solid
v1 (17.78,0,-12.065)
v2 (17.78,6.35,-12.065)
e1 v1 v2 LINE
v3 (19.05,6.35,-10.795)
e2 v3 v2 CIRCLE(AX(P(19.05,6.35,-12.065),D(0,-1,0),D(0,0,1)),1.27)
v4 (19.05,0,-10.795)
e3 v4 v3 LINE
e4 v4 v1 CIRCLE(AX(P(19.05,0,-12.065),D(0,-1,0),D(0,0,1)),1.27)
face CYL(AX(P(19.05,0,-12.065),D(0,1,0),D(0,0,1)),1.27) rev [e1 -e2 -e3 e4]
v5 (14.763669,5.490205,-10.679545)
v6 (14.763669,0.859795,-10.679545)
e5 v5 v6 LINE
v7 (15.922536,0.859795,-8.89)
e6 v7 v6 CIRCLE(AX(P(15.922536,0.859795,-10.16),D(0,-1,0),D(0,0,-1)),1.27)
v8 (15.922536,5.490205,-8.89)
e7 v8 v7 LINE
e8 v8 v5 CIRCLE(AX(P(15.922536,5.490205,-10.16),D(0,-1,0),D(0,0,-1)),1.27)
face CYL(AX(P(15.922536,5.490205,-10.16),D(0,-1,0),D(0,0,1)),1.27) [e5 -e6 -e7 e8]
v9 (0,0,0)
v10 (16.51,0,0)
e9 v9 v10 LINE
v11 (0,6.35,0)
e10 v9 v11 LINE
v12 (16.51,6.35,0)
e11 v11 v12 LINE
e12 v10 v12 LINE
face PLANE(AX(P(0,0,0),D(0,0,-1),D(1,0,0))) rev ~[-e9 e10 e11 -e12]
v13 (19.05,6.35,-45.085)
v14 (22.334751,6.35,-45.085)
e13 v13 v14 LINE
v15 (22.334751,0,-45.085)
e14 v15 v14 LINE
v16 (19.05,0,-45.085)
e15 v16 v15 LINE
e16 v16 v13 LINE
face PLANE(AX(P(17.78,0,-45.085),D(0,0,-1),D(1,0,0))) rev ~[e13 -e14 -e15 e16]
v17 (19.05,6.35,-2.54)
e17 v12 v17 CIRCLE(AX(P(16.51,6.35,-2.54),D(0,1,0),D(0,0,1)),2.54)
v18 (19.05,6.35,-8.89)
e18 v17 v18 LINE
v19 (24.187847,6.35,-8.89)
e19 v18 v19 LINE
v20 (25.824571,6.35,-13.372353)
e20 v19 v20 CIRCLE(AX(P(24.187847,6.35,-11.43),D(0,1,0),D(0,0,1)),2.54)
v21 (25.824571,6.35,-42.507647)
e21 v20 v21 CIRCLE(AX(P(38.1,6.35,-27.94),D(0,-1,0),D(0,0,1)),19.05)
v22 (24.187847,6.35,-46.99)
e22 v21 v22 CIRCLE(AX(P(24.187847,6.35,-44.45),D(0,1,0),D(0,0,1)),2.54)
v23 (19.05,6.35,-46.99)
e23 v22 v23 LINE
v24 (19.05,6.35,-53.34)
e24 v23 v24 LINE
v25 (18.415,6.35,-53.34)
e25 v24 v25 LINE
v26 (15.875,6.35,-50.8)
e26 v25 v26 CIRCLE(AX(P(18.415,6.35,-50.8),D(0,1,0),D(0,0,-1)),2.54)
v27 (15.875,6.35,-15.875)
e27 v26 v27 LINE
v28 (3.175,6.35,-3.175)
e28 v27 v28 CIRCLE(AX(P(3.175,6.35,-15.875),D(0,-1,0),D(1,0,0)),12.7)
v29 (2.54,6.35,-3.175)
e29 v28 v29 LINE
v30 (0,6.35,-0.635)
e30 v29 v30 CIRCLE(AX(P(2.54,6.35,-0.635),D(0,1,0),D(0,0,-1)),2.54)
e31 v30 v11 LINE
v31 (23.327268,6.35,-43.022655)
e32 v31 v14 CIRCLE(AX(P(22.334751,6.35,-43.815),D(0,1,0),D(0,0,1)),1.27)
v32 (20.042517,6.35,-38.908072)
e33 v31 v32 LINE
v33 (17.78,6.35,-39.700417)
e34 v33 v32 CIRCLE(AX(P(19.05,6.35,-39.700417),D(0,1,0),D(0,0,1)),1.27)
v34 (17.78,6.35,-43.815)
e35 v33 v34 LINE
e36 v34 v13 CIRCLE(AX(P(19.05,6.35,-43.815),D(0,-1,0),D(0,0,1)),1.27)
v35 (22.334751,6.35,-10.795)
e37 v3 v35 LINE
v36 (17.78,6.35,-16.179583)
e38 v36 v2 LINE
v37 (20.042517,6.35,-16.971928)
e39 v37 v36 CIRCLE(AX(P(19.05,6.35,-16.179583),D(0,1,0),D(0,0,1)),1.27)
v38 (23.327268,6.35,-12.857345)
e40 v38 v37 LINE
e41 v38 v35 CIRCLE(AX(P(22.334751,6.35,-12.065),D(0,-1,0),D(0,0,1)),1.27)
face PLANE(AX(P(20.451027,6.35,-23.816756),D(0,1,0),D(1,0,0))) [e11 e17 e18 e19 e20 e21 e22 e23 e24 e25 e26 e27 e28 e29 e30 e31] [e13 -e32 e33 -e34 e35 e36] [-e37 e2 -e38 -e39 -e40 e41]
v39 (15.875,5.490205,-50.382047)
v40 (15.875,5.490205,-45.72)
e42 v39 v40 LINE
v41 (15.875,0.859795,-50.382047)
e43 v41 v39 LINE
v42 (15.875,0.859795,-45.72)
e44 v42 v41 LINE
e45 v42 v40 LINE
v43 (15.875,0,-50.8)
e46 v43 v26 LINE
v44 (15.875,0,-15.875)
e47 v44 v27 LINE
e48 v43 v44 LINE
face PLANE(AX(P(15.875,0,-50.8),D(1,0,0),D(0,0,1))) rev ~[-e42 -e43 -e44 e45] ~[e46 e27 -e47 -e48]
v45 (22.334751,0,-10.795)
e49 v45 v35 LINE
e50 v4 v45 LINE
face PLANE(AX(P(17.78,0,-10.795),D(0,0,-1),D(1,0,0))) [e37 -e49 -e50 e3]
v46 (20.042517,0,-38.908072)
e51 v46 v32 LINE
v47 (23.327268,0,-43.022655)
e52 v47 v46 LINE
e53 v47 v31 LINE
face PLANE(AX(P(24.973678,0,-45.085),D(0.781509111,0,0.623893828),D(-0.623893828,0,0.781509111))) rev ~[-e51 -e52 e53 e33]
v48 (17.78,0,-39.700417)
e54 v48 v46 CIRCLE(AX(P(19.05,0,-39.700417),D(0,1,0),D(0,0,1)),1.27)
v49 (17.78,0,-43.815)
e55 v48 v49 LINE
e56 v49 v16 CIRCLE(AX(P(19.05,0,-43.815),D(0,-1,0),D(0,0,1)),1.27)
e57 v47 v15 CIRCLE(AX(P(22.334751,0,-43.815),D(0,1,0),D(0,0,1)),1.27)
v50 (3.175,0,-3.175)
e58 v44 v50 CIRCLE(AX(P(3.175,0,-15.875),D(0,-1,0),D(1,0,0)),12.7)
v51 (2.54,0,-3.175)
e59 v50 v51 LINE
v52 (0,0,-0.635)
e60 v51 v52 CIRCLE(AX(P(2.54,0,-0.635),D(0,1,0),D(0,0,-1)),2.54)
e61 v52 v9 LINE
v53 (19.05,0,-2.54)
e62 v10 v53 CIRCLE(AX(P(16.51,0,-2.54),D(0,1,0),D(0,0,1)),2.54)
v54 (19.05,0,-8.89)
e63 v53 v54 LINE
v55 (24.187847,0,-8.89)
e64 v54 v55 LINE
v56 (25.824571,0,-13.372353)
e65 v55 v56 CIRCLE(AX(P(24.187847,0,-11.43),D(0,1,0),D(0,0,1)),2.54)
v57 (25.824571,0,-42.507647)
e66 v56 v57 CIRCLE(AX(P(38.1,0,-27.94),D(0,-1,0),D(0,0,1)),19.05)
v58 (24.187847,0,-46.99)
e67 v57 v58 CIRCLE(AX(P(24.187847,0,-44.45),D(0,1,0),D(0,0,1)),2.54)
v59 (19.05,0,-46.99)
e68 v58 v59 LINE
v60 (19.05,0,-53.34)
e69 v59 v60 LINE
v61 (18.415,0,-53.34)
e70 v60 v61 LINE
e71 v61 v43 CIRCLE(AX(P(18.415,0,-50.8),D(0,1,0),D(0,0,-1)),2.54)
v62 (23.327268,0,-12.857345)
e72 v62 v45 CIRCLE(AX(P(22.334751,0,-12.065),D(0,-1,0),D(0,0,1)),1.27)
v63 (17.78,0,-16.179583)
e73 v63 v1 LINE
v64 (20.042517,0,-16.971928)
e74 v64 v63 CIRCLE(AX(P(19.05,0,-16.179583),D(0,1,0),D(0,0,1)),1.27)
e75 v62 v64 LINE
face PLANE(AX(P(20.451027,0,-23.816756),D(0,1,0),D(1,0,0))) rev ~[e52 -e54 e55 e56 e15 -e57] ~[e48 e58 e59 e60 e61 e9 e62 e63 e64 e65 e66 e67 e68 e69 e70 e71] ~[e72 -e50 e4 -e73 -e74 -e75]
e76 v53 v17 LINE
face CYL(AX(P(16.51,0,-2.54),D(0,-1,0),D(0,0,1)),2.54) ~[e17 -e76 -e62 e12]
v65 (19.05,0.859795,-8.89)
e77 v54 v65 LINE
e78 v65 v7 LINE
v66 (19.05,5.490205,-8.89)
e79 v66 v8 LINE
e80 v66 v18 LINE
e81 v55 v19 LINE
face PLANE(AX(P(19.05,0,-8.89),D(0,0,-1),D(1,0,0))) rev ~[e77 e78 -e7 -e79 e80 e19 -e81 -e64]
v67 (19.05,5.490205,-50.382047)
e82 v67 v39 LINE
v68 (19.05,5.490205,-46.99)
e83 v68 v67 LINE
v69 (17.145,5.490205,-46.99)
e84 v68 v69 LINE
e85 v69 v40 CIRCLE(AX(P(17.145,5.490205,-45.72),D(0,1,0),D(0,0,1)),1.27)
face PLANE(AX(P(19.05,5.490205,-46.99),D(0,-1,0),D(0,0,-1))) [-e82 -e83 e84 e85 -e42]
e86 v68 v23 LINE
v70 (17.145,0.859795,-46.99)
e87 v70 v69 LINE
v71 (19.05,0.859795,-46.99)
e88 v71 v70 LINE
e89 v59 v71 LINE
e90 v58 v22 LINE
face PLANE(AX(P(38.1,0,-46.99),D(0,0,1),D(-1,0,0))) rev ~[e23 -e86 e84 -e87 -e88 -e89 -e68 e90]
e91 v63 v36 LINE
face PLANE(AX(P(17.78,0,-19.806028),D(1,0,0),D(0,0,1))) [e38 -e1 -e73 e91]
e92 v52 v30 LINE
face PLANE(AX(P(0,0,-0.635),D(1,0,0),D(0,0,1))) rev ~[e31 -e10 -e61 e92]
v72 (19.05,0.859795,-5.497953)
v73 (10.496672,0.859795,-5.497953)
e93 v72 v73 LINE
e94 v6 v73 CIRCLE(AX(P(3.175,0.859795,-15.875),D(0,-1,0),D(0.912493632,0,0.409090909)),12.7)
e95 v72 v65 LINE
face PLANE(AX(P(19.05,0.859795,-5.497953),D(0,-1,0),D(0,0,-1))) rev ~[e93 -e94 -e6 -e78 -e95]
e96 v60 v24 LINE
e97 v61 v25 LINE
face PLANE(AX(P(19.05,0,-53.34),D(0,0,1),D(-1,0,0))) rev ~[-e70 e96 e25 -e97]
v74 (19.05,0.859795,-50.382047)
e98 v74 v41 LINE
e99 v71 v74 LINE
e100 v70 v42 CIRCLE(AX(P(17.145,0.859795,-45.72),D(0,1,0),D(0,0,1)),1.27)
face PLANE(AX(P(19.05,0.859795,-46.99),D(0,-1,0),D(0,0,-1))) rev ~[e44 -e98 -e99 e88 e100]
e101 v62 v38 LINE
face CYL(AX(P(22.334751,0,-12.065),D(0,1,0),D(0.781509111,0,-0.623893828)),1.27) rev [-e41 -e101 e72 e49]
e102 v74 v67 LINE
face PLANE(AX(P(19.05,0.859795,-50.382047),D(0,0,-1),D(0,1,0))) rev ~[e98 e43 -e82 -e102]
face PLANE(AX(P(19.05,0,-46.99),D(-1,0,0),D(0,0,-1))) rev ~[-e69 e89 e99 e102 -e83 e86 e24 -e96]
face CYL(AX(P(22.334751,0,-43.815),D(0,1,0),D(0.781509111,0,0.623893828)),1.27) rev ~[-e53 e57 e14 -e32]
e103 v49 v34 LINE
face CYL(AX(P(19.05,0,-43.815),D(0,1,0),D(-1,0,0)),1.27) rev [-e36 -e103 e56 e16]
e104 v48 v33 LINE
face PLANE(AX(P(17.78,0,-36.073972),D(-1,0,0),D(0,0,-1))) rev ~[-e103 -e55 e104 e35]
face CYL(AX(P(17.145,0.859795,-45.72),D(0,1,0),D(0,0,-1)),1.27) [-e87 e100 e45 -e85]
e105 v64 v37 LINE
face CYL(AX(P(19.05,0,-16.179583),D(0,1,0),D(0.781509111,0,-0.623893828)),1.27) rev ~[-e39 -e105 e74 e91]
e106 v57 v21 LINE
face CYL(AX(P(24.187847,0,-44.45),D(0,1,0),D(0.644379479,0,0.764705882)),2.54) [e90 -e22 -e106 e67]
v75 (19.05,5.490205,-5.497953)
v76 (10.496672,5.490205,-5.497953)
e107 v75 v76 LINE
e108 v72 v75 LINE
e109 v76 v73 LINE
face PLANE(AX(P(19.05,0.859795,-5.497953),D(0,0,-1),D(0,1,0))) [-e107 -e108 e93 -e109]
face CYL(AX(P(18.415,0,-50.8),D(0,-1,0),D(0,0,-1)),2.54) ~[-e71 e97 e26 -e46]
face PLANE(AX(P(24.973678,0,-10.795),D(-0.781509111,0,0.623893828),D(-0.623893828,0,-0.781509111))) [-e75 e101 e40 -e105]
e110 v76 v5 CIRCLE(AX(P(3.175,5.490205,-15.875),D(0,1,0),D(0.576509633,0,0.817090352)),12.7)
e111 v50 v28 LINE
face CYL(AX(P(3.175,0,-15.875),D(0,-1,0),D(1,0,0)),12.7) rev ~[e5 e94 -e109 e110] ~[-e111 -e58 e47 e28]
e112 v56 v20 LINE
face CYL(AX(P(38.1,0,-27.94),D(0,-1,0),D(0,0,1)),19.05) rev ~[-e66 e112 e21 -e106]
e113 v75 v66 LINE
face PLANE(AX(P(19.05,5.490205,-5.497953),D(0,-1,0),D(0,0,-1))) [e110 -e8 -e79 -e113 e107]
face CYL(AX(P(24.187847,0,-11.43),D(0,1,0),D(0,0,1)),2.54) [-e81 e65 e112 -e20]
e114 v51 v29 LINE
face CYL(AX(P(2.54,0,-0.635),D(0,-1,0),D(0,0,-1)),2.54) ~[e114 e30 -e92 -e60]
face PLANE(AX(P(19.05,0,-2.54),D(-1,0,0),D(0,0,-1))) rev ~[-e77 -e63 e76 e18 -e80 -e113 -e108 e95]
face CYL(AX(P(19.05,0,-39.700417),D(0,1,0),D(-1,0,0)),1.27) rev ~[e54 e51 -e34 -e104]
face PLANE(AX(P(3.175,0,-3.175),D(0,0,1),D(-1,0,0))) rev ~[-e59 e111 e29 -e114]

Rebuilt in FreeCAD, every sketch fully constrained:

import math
import FreeCAD as App
import Part
import Sketcher
from FreeCAD import Vector
Q = App.Units.Quantity


def edges_at(feature, points):
    """Names of the edges that pass closest to the given points."""
    edges = feature.Shape.Edges
    near = lambda p: min(range(len(edges)), key=lambda i: edges[i].distToShape(Part.Vertex(*p))[0])
    return sorted({f"Edge{near(p) + 1}" for p in points})


def add_polygon(sketch, points):
    """Adds a closed chain of lines whose ends are joined by coincident constraints."""
    first, n = sketch.GeometryCount, len(points)
    for a, b in zip(points, points[1:] + points[:1]):
        sketch.addGeometry(Part.LineSegment(App.Vector(*a, 0), App.Vector(*b, 0)), False)
    for i in range(n):
        sketch.addConstraint(Sketcher.Constraint("Coincident", first + i, 2, first + (i + 1) % n, 1))

doc = App.newDocument("Part")
body = doc.addObject("PartDesign::Body", "Body")

# Sketch on XZ plane
sketch1 = body.newObject("Sketcher::SketchObject", "Sketch")
sketch1.AttachmentSupport = (doc.getObject("XZ_Plane"), [""])
sketch1.MapMode = "FlatFace"
sketch1.addGeometry(Part.LineSegment(Vector(0, 0, 0), Vector(16.51, 0, 0)), False)  # 0
sketch1.addGeometry(Part.ArcOfCircle(Part.Circle(Vector(16.51, -2.54, 0), Vector(0, 0, 1), 2.54), math.radians(0), math.radians(90)), False)  # 1
sketch1.addGeometry(Part.LineSegment(Vector(19.05, -2.54, 0), Vector(19.05, -8.89, 0)), False)  # 2
sketch1.addGeometry(Part.LineSegment(Vector(19.05, -8.89, 0), Vector(38.1, -8.89, 0)), False)  # 3
sketch1.addGeometry(Part.ArcOfCircle(Part.Circle(Vector(38.1, -27.94, 0), Vector(0, 0, 1), 19.05), math.radians(90), math.radians(270)), False)  # 4
sketch1.addGeometry(Part.LineSegment(Vector(38.1, -46.99, 0), Vector(19.05, -46.99, 0)), False)  # 5
sketch1.addGeometry(Part.LineSegment(Vector(19.05, -46.99, 0), Vector(19.05, -53.34, 0)), False)  # 6
sketch1.addGeometry(Part.LineSegment(Vector(19.05, -53.34, 0), Vector(18.415, -53.34, 0)), False)  # 7
sketch1.addGeometry(Part.ArcOfCircle(Part.Circle(Vector(18.415, -50.8, 0), Vector(0, 0, 1), 2.54), math.radians(-180), math.radians(-90)), False)  # 8
sketch1.addGeometry(Part.LineSegment(Vector(15.875, -50.8, 0), Vector(15.875, -15.875, 0)), False)  # 9
sketch1.addGeometry(Part.ArcOfCircle(Part.Circle(Vector(3.175, -15.875, 0), Vector(0, 0, 1), 12.7), math.radians(0), math.radians(90)), False)  # 10
sketch1.addGeometry(Part.LineSegment(Vector(3.175, -3.175, 0), Vector(2.54, -3.175, 0)), False)  # 11
sketch1.addGeometry(Part.ArcOfCircle(Part.Circle(Vector(2.54, -0.635, 0), Vector(0, 0, 1), 2.54), math.radians(-180), math.radians(-90)), False)  # 12
sketch1.addGeometry(Part.LineSegment(Vector(0, -0.635, 0), Vector(0, 0, 0)), False)  # 13
add_polygon(sketch1, [(17.78, -19.806028), (24.973678, -10.795), (17.78, -10.795)])  # lines 14-16
add_polygon(sketch1, [(17.78, -36.073972), (17.78, -45.085), (24.973678, -45.085)])  # lines 17-19
sketch1.addConstraint([
    Sketcher.Constraint("Tangent", 0, 2, 1, 2),
    Sketcher.Constraint("Tangent", 1, 1, 2, 1),
    Sketcher.Constraint("Coincident", 2, 2, 3, 1),
    Sketcher.Constraint("Tangent", 3, 2, 4, 1),
    Sketcher.Constraint("Tangent", 4, 2, 5, 1),
    Sketcher.Constraint("Coincident", 5, 2, 6, 1),
    Sketcher.Constraint("Coincident", 6, 2, 7, 1),
    Sketcher.Constraint("Tangent", 7, 2, 8, 2),
    Sketcher.Constraint("Tangent", 8, 1, 9, 1),
    Sketcher.Constraint("Tangent", 9, 2, 10, 1),
    Sketcher.Constraint("Tangent", 10, 2, 11, 1),
    Sketcher.Constraint("Tangent", 11, 2, 12, 2),
    Sketcher.Constraint("Tangent", 12, 1, 13, 1),
    Sketcher.Constraint("Coincident", 13, 2, 0, 1),
    Sketcher.Constraint("Horizontal", 0),
    Sketcher.Constraint("Vertical", 2),
    Sketcher.Constraint("Horizontal", 3),
    Sketcher.Constraint("Horizontal", 5),
    Sketcher.Constraint("Vertical", 6),
    Sketcher.Constraint("Horizontal", 7),
    Sketcher.Constraint("Vertical", 9),
    Sketcher.Constraint("Horizontal", 11),
    Sketcher.Constraint("Vertical", 13),
    Sketcher.Constraint("Horizontal", 15),
    Sketcher.Constraint("Vertical", 16),
    Sketcher.Constraint("Vertical", 17),
    Sketcher.Constraint("Horizontal", 18),
    Sketcher.Constraint("Coincident", 13, 2, -1, 1),
    Sketcher.Constraint("Equal", 1, 8),
    Sketcher.Constraint("Equal", 8, 12),
    Sketcher.Constraint("Vertical", 2, 2, 5, 2),
    Sketcher.Constraint("Vertical", 16, 2, 17, 2),
    Sketcher.Constraint("Vertical", 14, 2, 18, 2),
    Sketcher.Constraint("Equal", 7, 11),
    Sketcher.Constraint("Equal", 2, 6),
    Sketcher.Constraint("Equal", 11, 13),
    Sketcher.Constraint("Equal", 16, 17),
    Sketcher.Constraint("Radius", 1, Q("0.1 in")),
    Sketcher.Constraint("Radius", 10, Q("0.5 in")),
    Sketcher.Constraint("Radius", 4, Q("0.75 in")),
    Sketcher.Constraint("DistanceY", 8, 3, -1, 1, Q("2 in")),
    Sketcher.Constraint("DistanceX", 0, 1, 0, 2, Q("0.65 in")),
    Sketcher.Constraint("DistanceX", 3, 1, 3, 2, Q("0.75 in")),
    Sketcher.Constraint("DistanceX", -1, 1, 15, 2, Q("0.7 in")),
    Sketcher.Constraint("DistanceY", 9, 2, 14, 2, Q("0.2 in")),
    Sketcher.Constraint("DistanceY", 17, 2, -1, 1, Q("1.775 in")),
    Sketcher.Constraint("DistanceY", 16, 2, 16, 1, 9.011028),
    Sketcher.Constraint("Distance", 14, 11.530292),
])
pad1 = body.newObject("PartDesign::Pad", "Pad")
pad1.Profile = sketch1
pad1.Length = Q("0.25 in")
pad1.Reversed = True
doc.recompute()

fillet = body.newObject("PartDesign::Fillet", "Fillet")
fillet.Base = (pad1, edges_at(pad1, [(38.1, 3.175, -46.99), (38.1, 3.175, -8.89)]))
fillet.Radius = Q("0.1 in")

# Sketch on YZ plane
sketch2 = body.newObject("Sketcher::SketchObject", "Sketch001")
sketch2.AttachmentSupport = (doc.getObject("YZ_Plane"), [""])
sketch2.MapMode = "FlatFace"
sketch2.AttachmentOffset = App.Placement(Vector(0, 0, 0.75 * 25.4), App.Rotation())
add_polygon(sketch2, [(5.490205, -5.497953), (0.859795, -5.497953), (0.859795, -8.89), (5.490205, -8.89)])  # lines 0-3
add_polygon(sketch2, [(5.490205, -46.99), (0.859795, -46.99), (0.859795, -50.382047), (5.490205, -50.382047)])  # lines 4-7
sketch2.addConstraint([
    Sketcher.Constraint("Horizontal", 0),
    Sketcher.Constraint("Vertical", 1),
    Sketcher.Constraint("Horizontal", 2),
    Sketcher.Constraint("Vertical", 3),
    Sketcher.Constraint("Horizontal", 4),
    Sketcher.Constraint("Vertical", 5),
    Sketcher.Constraint("Horizontal", 6),
    Sketcher.Constraint("Vertical", 7),
    Sketcher.Constraint("Vertical", 1, 2, 4, 2),
    Sketcher.Constraint("Vertical", 3, 2, 6, 2),
    Sketcher.Constraint("Equal", 3, 5),
    Sketcher.Constraint("DistanceY", 4, 2, 1, 2, Q("1.5 in")),
    Sketcher.Constraint("DistanceY", 1, 2, -1, 1, Q("0.35 in")),
    Sketcher.Constraint("DistanceX", 0, 2, 0, 1, 4.63041),
    Sketcher.Constraint("DistanceY", 1, 2, 1, 1, 3.392047),
    Sketcher.Constraint("DistanceX", -1, 1, 0, 2, 0.859795),
])
pocket1 = body.newObject("PartDesign::Pocket", "Pocket")
pocket1.Profile = sketch2
pocket1.Type = "ThroughAll"
doc.recompute()

fillet2 = body.newObject("PartDesign::Fillet", "Fillet001")
fillet2.Base = (pocket1, edges_at(pocket1, [
    (17.78, 3.175, -10.795),
    (24.974, 3.175, -10.795),
    (17.78, 3.175, -19.806),
    (17.78, 3.175, -36.074),
    (24.974, 3.175, -45.085),
    (17.78, 3.175, -45.085),
    (13.782, 3.175, -8.89),
    (15.875, 3.175, -46.99),
]))
fillet2.Radius = Q("0.05 in")

doc.recompute()
